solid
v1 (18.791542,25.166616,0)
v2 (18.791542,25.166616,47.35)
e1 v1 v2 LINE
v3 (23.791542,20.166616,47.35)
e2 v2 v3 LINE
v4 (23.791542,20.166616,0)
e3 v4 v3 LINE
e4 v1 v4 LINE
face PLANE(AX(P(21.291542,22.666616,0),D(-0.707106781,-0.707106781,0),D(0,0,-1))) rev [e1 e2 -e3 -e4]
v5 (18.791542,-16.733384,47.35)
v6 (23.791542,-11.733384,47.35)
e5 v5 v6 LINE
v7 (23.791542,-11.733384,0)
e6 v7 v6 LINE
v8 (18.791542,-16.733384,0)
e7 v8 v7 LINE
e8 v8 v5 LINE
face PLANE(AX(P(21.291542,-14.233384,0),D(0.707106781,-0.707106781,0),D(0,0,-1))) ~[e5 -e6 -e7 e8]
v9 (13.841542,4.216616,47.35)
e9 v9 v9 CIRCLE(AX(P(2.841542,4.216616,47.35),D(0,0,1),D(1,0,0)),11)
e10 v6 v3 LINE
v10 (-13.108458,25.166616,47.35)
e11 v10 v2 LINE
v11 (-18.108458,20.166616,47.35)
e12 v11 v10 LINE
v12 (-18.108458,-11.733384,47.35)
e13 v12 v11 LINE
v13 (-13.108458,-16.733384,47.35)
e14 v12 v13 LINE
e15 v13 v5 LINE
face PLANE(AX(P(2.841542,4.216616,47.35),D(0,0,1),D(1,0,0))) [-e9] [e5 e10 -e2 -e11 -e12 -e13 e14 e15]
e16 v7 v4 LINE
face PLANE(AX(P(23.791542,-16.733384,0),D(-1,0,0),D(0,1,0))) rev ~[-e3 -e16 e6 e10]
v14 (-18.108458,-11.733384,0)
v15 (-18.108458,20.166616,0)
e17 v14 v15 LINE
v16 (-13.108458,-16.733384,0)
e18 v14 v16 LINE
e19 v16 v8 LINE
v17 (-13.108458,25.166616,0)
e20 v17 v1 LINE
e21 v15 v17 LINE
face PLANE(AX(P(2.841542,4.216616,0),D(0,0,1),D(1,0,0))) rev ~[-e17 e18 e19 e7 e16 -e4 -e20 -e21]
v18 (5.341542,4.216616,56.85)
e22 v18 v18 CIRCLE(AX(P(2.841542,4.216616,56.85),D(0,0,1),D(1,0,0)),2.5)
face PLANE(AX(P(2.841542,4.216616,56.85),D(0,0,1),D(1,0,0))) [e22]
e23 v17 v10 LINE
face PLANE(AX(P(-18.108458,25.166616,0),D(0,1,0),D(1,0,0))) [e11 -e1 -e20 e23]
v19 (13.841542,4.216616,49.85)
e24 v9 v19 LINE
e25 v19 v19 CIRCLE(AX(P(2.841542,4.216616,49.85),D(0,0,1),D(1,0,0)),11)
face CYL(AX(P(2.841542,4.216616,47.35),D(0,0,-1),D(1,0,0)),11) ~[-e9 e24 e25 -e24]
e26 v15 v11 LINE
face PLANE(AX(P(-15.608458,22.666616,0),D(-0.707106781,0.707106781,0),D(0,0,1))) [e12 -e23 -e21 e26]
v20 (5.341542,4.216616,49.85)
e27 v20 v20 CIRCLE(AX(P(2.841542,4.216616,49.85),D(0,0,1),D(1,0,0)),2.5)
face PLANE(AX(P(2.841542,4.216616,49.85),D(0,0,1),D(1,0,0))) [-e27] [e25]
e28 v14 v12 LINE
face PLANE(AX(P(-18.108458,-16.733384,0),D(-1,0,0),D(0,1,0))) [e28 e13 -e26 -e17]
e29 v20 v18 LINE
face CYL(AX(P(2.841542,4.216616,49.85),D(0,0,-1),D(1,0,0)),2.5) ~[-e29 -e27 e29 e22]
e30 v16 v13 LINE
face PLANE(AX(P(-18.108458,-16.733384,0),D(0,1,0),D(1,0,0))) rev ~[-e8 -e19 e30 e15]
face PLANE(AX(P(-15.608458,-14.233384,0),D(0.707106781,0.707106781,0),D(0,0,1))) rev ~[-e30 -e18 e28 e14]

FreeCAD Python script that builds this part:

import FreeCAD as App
import Part
import Sketcher


def edges_at(feature, points):
    """Names of the edges that pass closest to the given points."""
    edges = feature.Shape.Edges
    near = lambda p: min(range(len(edges)), key=lambda i: edges[i].distToShape(Part.Vertex(*p))[0])
    return sorted({f"Edge{near(p) + 1}" for p in points})

doc = App.newDocument("Part")
params = doc.addObject("Spreadsheet::Sheet", "Params")
for row, (alias, value) in enumerate([
    ("sketch1_width", "41.9 mm"),
    ("pad1_length", "47.35 mm"),
    ("sketch2_diameter", "22 mm"),
    ("pad2_length", "2.5 mm"),
    ("sketch3_diameter", "5 mm"),
    ("pad3_length", "7 mm"),
    ("chamfer_size", "5 mm"),
], start=1):
    params.set(f"A{row}", alias)
    params.set(f"B{row}", "=" + value)
    params.setAlias(f"B{row}", alias)

body = doc.addObject("PartDesign::Body", "Body")

# Sketch on XY plane
sketch1 = body.newObject("Sketcher::SketchObject", "Sketch")
sketch1.AttachmentSupport = (doc.getObject("XY_Plane"), [""])
sketch1.MapMode = "FlatFace"
sketch1.addGeometry(Part.LineSegment(App.Vector(-18.108458, 25.166616, 0), App.Vector(-18.108458, -16.733384, 0)), False)
sketch1.addGeometry(Part.LineSegment(App.Vector(-18.108458, -16.733384, 0), App.Vector(23.791542, -16.733384, 0)), False)
sketch1.addGeometry(Part.LineSegment(App.Vector(23.791542, -16.733384, 0), App.Vector(23.791542, 25.166616, 0)), False)
sketch1.addGeometry(Part.LineSegment(App.Vector(23.791542, 25.166616, 0), App.Vector(-18.108458, 25.166616, 0)), False)
sketch1.addConstraint(Sketcher.Constraint("Coincident", 0, 2, 1, 1))
sketch1.addConstraint(Sketcher.Constraint("Coincident", 1, 2, 2, 1))
sketch1.addConstraint(Sketcher.Constraint("Coincident", 2, 2, 3, 1))
sketch1.addConstraint(Sketcher.Constraint("Coincident", 3, 2, 0, 1))
sketch1.addConstraint(Sketcher.Constraint("Vertical", 0))
sketch1.addConstraint(Sketcher.Constraint("Horizontal", 1))
sketch1.addConstraint(Sketcher.Constraint("Vertical", 2))
sketch1.addConstraint(Sketcher.Constraint("Horizontal", 3))
sketch1.addConstraint(Sketcher.Constraint("Equal", 3, 0))
sketch1.addConstraint(Sketcher.Constraint("DistanceX", 1, 1, 1, 2, 41.9))
sketch1.addConstraint(Sketcher.Constraint("DistanceX", -1, 1, 1, 2, 23.791542))
sketch1.addConstraint(Sketcher.Constraint("DistanceY", 0, 2, -1, 1, 16.733384))
sketch1.setExpression("Constraints[9]", "Params.sketch1_width")
pad1 = body.newObject("PartDesign::Pad", "Pad")
pad1.Profile = sketch1
pad1.setExpression("Length", "Params.pad1_length")

# Sketch on XY plane
sketch2 = body.newObject("Sketcher::SketchObject", "Sketch001")
sketch2.AttachmentSupport = (doc.getObject("XY_Plane"), [""])
sketch2.MapMode = "FlatFace"
sketch2.AttachmentOffset = App.Placement(App.Vector(0, 0, 47.35), App.Rotation())
sketch2.addGeometry(Part.Circle(App.Vector(2.841542, 4.216616, 0), App.Vector(0, 0, 1), 11), False)
sketch2.addConstraint(Sketcher.Constraint("Diameter", 0, 22.0))
sketch2.addConstraint(Sketcher.Constraint("DistanceX", -1, 1, 0, 3, 2.841542))
sketch2.addConstraint(Sketcher.Constraint("DistanceY", -1, 1, 0, 3, 4.216616))
sketch2.setExpression("Constraints[0]", "Params.sketch2_diameter")
pad2 = body.newObject("PartDesign::Pad", "Pad001")
pad2.Profile = sketch2
pad2.setExpression("Length", "Params.pad2_length")

# Sketch on XY plane
sketch3 = body.newObject("Sketcher::SketchObject", "Sketch002")
sketch3.AttachmentSupport = (doc.getObject("XY_Plane"), [""])
sketch3.MapMode = "FlatFace"
sketch3.AttachmentOffset = App.Placement(App.Vector(0, 0, 49.85), App.Rotation())
sketch3.addGeometry(Part.Circle(App.Vector(2.841542, 4.216616, 0), App.Vector(0, 0, 1), 2.5), False)
sketch3.addConstraint(Sketcher.Constraint("Diameter", 0, 5.0))
sketch3.addConstraint(Sketcher.Constraint("DistanceX", -1, 1, 0, 3, 2.841542))
sketch3.addConstraint(Sketcher.Constraint("DistanceY", -1, 1, 0, 3, 4.216616))
sketch3.setExpression("Constraints[0]", "Params.sketch3_diameter")
pad3 = body.newObject("PartDesign::Pad", "Pad002")
pad3.Profile = sketch3
pad3.setExpression("Length", "Params.pad3_length")
doc.recompute()

chamfer = body.newObject("PartDesign::Chamfer", "Chamfer")
chamfer.Base = (pad3, edges_at(pad3, [
    (-18.108, 25.167, 23.675),
    (-18.108, -16.733, 23.675),
    (23.792, -16.733, 23.675),
    (23.792, 25.167, 23.675),
]))
chamfer.setExpression("Size", "Params.chamfer_size")

doc.recompute()
